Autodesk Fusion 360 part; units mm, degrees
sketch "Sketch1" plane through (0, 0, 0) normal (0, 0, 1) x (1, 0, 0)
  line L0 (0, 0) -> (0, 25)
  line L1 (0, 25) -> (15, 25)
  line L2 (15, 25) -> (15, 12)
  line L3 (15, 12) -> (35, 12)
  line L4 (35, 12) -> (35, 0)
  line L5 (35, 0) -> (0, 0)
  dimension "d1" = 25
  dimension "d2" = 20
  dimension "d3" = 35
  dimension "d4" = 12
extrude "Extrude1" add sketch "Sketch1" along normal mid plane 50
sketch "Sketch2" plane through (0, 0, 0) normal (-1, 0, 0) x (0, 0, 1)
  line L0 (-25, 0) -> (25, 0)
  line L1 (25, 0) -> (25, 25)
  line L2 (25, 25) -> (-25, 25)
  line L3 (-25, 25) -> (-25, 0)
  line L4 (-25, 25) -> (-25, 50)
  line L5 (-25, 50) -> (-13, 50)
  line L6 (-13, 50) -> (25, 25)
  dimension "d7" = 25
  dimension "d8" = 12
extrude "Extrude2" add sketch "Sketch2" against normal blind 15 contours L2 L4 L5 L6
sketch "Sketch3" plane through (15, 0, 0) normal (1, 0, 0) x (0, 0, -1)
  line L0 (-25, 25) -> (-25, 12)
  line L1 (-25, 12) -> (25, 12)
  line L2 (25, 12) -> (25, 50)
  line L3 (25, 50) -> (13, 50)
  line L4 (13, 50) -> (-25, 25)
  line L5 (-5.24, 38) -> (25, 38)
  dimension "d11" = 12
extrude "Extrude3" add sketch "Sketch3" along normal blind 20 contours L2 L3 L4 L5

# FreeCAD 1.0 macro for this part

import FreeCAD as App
import Part
import Sketcher

V = App.Vector

doc = App.newDocument("Part")
body = doc.addObject("PartDesign::Body", "Body")

# Sketch on XY plane
sketch1 = body.newObject("Sketcher::SketchObject", "Sketch")
sketch1.AttachmentSupport = (doc.getObject("XY_Plane"), [""])
sketch1.MapMode = "FlatFace"
sketch1.addGeometry([
    Part.LineSegment(V(0, 25, 0), V(0, 0, 0)),  # 0
    Part.LineSegment(V(0, 0, 0), V(35, 0, 0)),  # 1
    Part.LineSegment(V(35, 0, 0), V(35, 12, 0)),  # 2
    Part.LineSegment(V(35, 12, 0), V(15, 12, 0)),  # 3
    Part.LineSegment(V(15, 12, 0), V(15, 25, 0)),  # 4
    Part.LineSegment(V(15, 25, 0), V(0, 25, 0)),  # 5
], False)
sketch1.addConstraint([
    Sketcher.Constraint("Coincident", 0, 2, 1, 1),
    Sketcher.Constraint("Coincident", 1, 2, 2, 1),
    Sketcher.Constraint("Coincident", 2, 2, 3, 1),
    Sketcher.Constraint("Coincident", 3, 2, 4, 1),
    Sketcher.Constraint("Coincident", 4, 2, 5, 1),
    Sketcher.Constraint("Coincident", 5, 2, 0, 1),
    Sketcher.Constraint("Vertical", 0),
    Sketcher.Constraint("Horizontal", 1),
    Sketcher.Constraint("Vertical", 2),
    Sketcher.Constraint("Horizontal", 3),
    Sketcher.Constraint("Vertical", 4),
    Sketcher.Constraint("Horizontal", 5),
    Sketcher.Constraint("Coincident", 0, 2, -1, 1),
    Sketcher.Constraint("DistanceX", 1, 1, 1, 2, 35.0),
    Sketcher.Constraint("DistanceX", 3, 2, 3, 1, 20.0),
    Sketcher.Constraint("DistanceY", 0, 2, 0, 1, 25.0),
    Sketcher.Constraint("DistanceY", 2, 1, 2, 2, 12.0),
])
pad1 = body.newObject("PartDesign::Pad", "Pad")
pad1.Profile = sketch1
pad1.Length = 50
pad1.Midplane = True

# Sketch on YZ plane
sketch2 = body.newObject("Sketcher::SketchObject", "Sketch001")
sketch2.AttachmentSupport = (doc.getObject("YZ_Plane"), [""])
sketch2.MapMode = "FlatFace"
sketch2.addGeometry([
    Part.LineSegment(V(50, -25, 0), V(25, -25, 0)),
    Part.LineSegment(V(25, -25, 0), V(25, 25, 0)),
    Part.LineSegment(V(25, 25, 0), V(50, -13, 0)),
    Part.LineSegment(V(50, -13, 0), V(50, -25, 0)),
], False)
sketch2.addConstraint([
    Sketcher.Constraint("Coincident", 0, 2, 1, 1),
    Sketcher.Constraint("Coincident", 1, 2, 2, 1),
    Sketcher.Constraint("Coincident", 2, 2, 3, 1),
    Sketcher.Constraint("Coincident", 3, 2, 0, 1),
    Sketcher.Constraint("Horizontal", 0),
    Sketcher.Constraint("Vertical", 1),
    Sketcher.Constraint("Vertical", 3),
    Sketcher.Constraint("DistanceX", 0, 2, 0, 1, 25.0),
    Sketcher.Constraint("DistanceY", 3, 2, 3, 1, 12.0),
    Sketcher.Constraint("DistanceX", -1, 1, 0, 2, 25.0),
    Sketcher.Constraint("DistanceY", 0, 2, -1, 1, 25.0),
    Sketcher.Constraint("DistanceY", -1, 1, 1, 2, 25.0),
])
pad2 = body.newObject("PartDesign::Pad", "Pad001")
pad2.Profile = sketch2
pad2.Length = 15

# Sketch on YZ plane
sketch3 = body.newObject("Sketcher::SketchObject", "Sketch002")
sketch3.AttachmentSupport = (doc.getObject("YZ_Plane"), [""])
sketch3.MapMode = "FlatFace"
sketch3.AttachmentOffset = App.Placement(V(0, 0, 15), App.Rotation())
sketch3.addGeometry([
    Part.LineSegment(V(50, -13, 0), V(38, 5, 0)),
    Part.LineSegment(V(38, 5, 0), V(38, -25, 0)),
    Part.LineSegment(V(38, -25, 0), V(50, -25, 0)),
    Part.LineSegment(V(50, -25, 0), V(50, -13, 0)),
], False)
sketch3.addConstraint([
    Sketcher.Constraint("Coincident", 0, 2, 1, 1),
    Sketcher.Constraint("Coincident", 1, 2, 2, 1),
    Sketcher.Constraint("Coincident", 2, 2, 3, 1),
    Sketcher.Constraint("Coincident", 3, 2, 0, 1),
    Sketcher.Constraint("Vertical", 1),
    Sketcher.Constraint("Horizontal", 2),
    Sketcher.Constraint("Vertical", 3),
    Sketcher.Constraint("Equal", 2, 3),
    Sketcher.Constraint("DistanceX", 2, 1, 2, 2, 12.0),
    Sketcher.Constraint("DistanceX", -1, 1, 0, 2, 38.0),
    Sketcher.Constraint("DistanceY", 1, 2, -1, 1, 25.0),
    Sketcher.Constraint("DistanceY", 1, 2, 1, 1, 30.24),
])
pad3 = body.newObject("PartDesign::Pad", "Pad002")
pad3.Profile = sketch3
pad3.Length = 20

doc.recompute()
